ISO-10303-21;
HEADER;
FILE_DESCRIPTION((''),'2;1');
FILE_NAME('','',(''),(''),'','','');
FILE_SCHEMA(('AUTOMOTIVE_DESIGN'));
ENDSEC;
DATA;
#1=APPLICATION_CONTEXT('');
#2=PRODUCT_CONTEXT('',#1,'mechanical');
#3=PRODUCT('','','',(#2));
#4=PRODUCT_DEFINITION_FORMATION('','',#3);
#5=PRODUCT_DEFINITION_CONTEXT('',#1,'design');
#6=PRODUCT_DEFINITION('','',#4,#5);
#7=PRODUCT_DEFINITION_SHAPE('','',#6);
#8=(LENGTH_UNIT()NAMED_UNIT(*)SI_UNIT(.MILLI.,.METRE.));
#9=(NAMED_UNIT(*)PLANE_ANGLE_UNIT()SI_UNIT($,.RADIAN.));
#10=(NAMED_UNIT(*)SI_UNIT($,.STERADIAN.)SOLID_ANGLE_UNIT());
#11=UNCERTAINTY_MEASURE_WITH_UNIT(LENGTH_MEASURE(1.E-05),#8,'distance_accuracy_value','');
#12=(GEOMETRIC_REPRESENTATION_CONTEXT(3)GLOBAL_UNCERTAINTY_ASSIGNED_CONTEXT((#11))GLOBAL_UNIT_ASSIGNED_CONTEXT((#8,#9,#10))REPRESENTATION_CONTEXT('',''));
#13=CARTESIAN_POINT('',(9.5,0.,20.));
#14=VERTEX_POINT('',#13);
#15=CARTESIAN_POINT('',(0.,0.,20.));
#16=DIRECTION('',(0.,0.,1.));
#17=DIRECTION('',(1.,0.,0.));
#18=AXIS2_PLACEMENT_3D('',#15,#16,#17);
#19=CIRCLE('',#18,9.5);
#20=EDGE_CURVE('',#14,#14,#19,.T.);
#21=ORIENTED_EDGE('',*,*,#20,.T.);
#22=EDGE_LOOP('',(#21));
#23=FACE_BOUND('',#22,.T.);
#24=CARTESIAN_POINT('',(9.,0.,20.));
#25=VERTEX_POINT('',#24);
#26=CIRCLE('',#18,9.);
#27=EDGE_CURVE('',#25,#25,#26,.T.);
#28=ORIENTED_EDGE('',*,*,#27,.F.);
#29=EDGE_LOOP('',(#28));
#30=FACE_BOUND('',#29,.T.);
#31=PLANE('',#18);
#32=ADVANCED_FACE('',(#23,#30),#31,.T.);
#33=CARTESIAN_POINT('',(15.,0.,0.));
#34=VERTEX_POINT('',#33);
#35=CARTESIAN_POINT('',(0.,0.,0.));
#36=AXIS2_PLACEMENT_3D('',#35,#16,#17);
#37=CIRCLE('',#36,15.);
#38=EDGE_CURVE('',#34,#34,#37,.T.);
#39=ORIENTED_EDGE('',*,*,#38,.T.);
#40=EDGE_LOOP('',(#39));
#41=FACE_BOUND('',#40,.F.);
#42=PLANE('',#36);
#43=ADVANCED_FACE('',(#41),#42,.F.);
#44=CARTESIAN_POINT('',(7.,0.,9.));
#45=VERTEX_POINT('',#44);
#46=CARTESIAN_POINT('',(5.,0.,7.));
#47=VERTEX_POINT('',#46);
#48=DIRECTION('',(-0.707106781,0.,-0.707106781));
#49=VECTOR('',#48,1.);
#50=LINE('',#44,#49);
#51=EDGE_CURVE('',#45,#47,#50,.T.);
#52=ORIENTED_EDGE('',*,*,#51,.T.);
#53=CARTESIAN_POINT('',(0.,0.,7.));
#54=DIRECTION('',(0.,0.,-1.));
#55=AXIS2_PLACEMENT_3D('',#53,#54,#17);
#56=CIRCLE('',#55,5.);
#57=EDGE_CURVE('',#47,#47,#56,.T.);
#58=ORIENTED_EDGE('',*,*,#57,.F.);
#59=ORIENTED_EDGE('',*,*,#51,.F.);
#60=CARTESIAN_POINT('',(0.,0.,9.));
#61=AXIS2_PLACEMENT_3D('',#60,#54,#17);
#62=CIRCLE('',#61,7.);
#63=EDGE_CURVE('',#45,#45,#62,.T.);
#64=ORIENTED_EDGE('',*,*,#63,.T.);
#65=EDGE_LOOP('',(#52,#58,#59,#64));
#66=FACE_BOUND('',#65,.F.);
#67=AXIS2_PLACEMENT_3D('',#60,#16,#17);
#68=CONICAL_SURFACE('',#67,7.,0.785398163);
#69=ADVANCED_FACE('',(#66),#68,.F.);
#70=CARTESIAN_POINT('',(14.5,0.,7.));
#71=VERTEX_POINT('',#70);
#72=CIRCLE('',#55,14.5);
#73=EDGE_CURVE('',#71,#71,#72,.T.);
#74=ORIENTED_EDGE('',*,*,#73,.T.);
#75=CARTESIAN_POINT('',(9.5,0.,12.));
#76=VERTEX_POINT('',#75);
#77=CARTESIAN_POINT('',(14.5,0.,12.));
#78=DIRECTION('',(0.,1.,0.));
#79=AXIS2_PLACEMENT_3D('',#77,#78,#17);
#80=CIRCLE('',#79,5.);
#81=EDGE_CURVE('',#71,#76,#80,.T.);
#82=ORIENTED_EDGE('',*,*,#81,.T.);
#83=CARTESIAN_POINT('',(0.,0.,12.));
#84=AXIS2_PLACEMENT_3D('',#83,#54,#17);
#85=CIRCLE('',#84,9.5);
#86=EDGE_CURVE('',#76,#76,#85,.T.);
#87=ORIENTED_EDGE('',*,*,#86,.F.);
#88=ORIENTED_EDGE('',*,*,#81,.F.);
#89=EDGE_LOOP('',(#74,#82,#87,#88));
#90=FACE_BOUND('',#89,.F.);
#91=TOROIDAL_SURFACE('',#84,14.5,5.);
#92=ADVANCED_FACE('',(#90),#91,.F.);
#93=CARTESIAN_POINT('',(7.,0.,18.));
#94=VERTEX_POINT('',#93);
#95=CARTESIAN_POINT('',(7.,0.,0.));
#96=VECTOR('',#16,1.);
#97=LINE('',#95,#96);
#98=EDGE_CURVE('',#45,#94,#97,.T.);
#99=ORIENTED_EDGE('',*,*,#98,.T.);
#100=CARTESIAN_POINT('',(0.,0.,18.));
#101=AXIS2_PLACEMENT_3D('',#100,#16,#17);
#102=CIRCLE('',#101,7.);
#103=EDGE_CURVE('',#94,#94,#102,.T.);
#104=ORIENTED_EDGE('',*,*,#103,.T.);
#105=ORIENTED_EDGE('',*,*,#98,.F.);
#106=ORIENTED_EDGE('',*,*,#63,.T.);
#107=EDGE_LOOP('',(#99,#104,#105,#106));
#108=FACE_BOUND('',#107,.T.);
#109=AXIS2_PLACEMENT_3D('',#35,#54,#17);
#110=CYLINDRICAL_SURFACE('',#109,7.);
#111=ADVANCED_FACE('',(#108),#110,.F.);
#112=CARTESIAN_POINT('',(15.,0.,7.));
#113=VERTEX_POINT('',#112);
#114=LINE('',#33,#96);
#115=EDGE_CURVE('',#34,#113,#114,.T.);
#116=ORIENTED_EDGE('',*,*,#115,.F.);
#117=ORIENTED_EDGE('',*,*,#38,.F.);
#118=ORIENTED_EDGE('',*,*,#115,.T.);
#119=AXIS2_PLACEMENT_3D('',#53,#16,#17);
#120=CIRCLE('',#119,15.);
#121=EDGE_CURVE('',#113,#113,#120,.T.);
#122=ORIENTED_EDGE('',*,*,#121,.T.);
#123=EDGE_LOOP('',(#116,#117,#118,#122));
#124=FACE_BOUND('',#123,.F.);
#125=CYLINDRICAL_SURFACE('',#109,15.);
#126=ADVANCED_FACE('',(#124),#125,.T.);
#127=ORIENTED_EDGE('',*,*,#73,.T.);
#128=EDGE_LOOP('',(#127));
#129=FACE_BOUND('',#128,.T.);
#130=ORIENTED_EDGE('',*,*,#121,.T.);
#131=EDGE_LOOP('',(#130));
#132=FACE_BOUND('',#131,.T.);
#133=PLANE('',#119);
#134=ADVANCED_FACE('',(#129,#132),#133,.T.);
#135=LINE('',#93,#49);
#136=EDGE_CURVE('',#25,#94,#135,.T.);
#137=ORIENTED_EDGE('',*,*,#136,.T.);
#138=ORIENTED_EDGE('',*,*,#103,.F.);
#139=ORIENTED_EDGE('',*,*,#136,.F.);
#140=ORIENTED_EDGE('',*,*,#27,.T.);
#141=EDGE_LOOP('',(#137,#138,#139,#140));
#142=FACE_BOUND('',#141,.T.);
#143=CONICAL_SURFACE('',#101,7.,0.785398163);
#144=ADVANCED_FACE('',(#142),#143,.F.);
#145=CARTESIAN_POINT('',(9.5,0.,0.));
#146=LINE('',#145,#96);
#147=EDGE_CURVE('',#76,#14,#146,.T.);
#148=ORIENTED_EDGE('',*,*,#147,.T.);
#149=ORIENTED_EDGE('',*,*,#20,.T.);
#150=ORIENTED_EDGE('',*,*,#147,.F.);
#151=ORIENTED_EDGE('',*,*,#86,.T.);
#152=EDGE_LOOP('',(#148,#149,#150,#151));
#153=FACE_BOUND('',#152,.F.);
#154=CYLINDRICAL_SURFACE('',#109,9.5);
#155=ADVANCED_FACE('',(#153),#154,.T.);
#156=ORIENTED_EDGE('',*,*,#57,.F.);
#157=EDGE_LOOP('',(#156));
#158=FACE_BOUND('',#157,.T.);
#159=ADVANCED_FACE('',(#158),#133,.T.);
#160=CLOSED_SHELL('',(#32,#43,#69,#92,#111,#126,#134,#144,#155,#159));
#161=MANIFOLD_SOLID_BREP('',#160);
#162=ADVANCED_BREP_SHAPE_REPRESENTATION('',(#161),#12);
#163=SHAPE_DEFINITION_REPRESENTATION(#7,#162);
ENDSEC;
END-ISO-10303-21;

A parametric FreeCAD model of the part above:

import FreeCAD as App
import Part
import Sketcher
from FreeCAD import Vector
Q = App.Units.Quantity


def edges_at(feature, points):
    """Names of the edges that pass closest to the given points."""
    edges = feature.Shape.Edges
    near = lambda p: min(range(len(edges)), key=lambda i: edges[i].distToShape(Part.Vertex(*p))[0])
    return sorted({f"Edge{near(p) + 1}" for p in points})

doc = App.newDocument("Part")
body = doc.addObject("PartDesign::Body", "Body")

# Sketch on XY plane
sketch1 = body.newObject("Sketcher::SketchObject", "Sketch")
sketch1.AttachmentSupport = (doc.getObject("XY_Plane"), [""])
sketch1.MapMode = "FlatFace"
sketch1.addGeometry(Part.Circle(Vector(0, 0, 0), Vector(0, 0, 1), 15), False)
sketch1.addConstraint(Sketcher.Constraint("Coincident", 0, 3, -1, 1))
sketch1.addConstraint(Sketcher.Constraint("Diameter", 0, Q("30 mm")))
pad1 = body.newObject("PartDesign::Pad", "Pad")
pad1.Profile = sketch1
pad1.Length = 7

# Sketch on XY plane
sketch2 = body.newObject("Sketcher::SketchObject", "Sketch001")
sketch2.AttachmentSupport = (doc.getObject("XY_Plane"), [""])
sketch2.MapMode = "FlatFace"
sketch2.addGeometry(Part.Circle(Vector(0, 0, 0), Vector(0, 0, 1), 10), False)
sketch2.addGeometry(Part.Circle(Vector(0, 0, 0), Vector(0, 0, 1), 7), False)
sketch2.addConstraint(Sketcher.Constraint("Coincident", 0, 3, -1, 1))
sketch2.addConstraint(Sketcher.Constraint("Coincident", 1, 3, -1, 1))
sketch2.addConstraint(Sketcher.Constraint("Diameter", 0, Q("19 mm")))
sketch2.addConstraint(Sketcher.Constraint("Diameter", 1, Q("14 mm")))
pad2 = body.newObject("PartDesign::Pad", "Pad001")
pad2.Profile = sketch2
pad2.Length = 20
doc.recompute()

fillet = body.newObject("PartDesign::Fillet", "Fillet")
fillet.Base = (pad2, edges_at(pad2, [(-9.5, 0, 7)]))
fillet.Radius = 5
doc.recompute()

chamfer = body.newObject("PartDesign::Chamfer", "Chamfer")
chamfer.Base = (fillet, edges_at(fillet, [(-7, 0, 20)]))
chamfer.Size = 2
doc.recompute()

chamfer2 = body.newObject("PartDesign::Chamfer", "Chamfer001")
chamfer2.Base = (chamfer, edges_at(chamfer, [(-7, 0, 7)]))
chamfer2.Size = 2

doc.recompute()
